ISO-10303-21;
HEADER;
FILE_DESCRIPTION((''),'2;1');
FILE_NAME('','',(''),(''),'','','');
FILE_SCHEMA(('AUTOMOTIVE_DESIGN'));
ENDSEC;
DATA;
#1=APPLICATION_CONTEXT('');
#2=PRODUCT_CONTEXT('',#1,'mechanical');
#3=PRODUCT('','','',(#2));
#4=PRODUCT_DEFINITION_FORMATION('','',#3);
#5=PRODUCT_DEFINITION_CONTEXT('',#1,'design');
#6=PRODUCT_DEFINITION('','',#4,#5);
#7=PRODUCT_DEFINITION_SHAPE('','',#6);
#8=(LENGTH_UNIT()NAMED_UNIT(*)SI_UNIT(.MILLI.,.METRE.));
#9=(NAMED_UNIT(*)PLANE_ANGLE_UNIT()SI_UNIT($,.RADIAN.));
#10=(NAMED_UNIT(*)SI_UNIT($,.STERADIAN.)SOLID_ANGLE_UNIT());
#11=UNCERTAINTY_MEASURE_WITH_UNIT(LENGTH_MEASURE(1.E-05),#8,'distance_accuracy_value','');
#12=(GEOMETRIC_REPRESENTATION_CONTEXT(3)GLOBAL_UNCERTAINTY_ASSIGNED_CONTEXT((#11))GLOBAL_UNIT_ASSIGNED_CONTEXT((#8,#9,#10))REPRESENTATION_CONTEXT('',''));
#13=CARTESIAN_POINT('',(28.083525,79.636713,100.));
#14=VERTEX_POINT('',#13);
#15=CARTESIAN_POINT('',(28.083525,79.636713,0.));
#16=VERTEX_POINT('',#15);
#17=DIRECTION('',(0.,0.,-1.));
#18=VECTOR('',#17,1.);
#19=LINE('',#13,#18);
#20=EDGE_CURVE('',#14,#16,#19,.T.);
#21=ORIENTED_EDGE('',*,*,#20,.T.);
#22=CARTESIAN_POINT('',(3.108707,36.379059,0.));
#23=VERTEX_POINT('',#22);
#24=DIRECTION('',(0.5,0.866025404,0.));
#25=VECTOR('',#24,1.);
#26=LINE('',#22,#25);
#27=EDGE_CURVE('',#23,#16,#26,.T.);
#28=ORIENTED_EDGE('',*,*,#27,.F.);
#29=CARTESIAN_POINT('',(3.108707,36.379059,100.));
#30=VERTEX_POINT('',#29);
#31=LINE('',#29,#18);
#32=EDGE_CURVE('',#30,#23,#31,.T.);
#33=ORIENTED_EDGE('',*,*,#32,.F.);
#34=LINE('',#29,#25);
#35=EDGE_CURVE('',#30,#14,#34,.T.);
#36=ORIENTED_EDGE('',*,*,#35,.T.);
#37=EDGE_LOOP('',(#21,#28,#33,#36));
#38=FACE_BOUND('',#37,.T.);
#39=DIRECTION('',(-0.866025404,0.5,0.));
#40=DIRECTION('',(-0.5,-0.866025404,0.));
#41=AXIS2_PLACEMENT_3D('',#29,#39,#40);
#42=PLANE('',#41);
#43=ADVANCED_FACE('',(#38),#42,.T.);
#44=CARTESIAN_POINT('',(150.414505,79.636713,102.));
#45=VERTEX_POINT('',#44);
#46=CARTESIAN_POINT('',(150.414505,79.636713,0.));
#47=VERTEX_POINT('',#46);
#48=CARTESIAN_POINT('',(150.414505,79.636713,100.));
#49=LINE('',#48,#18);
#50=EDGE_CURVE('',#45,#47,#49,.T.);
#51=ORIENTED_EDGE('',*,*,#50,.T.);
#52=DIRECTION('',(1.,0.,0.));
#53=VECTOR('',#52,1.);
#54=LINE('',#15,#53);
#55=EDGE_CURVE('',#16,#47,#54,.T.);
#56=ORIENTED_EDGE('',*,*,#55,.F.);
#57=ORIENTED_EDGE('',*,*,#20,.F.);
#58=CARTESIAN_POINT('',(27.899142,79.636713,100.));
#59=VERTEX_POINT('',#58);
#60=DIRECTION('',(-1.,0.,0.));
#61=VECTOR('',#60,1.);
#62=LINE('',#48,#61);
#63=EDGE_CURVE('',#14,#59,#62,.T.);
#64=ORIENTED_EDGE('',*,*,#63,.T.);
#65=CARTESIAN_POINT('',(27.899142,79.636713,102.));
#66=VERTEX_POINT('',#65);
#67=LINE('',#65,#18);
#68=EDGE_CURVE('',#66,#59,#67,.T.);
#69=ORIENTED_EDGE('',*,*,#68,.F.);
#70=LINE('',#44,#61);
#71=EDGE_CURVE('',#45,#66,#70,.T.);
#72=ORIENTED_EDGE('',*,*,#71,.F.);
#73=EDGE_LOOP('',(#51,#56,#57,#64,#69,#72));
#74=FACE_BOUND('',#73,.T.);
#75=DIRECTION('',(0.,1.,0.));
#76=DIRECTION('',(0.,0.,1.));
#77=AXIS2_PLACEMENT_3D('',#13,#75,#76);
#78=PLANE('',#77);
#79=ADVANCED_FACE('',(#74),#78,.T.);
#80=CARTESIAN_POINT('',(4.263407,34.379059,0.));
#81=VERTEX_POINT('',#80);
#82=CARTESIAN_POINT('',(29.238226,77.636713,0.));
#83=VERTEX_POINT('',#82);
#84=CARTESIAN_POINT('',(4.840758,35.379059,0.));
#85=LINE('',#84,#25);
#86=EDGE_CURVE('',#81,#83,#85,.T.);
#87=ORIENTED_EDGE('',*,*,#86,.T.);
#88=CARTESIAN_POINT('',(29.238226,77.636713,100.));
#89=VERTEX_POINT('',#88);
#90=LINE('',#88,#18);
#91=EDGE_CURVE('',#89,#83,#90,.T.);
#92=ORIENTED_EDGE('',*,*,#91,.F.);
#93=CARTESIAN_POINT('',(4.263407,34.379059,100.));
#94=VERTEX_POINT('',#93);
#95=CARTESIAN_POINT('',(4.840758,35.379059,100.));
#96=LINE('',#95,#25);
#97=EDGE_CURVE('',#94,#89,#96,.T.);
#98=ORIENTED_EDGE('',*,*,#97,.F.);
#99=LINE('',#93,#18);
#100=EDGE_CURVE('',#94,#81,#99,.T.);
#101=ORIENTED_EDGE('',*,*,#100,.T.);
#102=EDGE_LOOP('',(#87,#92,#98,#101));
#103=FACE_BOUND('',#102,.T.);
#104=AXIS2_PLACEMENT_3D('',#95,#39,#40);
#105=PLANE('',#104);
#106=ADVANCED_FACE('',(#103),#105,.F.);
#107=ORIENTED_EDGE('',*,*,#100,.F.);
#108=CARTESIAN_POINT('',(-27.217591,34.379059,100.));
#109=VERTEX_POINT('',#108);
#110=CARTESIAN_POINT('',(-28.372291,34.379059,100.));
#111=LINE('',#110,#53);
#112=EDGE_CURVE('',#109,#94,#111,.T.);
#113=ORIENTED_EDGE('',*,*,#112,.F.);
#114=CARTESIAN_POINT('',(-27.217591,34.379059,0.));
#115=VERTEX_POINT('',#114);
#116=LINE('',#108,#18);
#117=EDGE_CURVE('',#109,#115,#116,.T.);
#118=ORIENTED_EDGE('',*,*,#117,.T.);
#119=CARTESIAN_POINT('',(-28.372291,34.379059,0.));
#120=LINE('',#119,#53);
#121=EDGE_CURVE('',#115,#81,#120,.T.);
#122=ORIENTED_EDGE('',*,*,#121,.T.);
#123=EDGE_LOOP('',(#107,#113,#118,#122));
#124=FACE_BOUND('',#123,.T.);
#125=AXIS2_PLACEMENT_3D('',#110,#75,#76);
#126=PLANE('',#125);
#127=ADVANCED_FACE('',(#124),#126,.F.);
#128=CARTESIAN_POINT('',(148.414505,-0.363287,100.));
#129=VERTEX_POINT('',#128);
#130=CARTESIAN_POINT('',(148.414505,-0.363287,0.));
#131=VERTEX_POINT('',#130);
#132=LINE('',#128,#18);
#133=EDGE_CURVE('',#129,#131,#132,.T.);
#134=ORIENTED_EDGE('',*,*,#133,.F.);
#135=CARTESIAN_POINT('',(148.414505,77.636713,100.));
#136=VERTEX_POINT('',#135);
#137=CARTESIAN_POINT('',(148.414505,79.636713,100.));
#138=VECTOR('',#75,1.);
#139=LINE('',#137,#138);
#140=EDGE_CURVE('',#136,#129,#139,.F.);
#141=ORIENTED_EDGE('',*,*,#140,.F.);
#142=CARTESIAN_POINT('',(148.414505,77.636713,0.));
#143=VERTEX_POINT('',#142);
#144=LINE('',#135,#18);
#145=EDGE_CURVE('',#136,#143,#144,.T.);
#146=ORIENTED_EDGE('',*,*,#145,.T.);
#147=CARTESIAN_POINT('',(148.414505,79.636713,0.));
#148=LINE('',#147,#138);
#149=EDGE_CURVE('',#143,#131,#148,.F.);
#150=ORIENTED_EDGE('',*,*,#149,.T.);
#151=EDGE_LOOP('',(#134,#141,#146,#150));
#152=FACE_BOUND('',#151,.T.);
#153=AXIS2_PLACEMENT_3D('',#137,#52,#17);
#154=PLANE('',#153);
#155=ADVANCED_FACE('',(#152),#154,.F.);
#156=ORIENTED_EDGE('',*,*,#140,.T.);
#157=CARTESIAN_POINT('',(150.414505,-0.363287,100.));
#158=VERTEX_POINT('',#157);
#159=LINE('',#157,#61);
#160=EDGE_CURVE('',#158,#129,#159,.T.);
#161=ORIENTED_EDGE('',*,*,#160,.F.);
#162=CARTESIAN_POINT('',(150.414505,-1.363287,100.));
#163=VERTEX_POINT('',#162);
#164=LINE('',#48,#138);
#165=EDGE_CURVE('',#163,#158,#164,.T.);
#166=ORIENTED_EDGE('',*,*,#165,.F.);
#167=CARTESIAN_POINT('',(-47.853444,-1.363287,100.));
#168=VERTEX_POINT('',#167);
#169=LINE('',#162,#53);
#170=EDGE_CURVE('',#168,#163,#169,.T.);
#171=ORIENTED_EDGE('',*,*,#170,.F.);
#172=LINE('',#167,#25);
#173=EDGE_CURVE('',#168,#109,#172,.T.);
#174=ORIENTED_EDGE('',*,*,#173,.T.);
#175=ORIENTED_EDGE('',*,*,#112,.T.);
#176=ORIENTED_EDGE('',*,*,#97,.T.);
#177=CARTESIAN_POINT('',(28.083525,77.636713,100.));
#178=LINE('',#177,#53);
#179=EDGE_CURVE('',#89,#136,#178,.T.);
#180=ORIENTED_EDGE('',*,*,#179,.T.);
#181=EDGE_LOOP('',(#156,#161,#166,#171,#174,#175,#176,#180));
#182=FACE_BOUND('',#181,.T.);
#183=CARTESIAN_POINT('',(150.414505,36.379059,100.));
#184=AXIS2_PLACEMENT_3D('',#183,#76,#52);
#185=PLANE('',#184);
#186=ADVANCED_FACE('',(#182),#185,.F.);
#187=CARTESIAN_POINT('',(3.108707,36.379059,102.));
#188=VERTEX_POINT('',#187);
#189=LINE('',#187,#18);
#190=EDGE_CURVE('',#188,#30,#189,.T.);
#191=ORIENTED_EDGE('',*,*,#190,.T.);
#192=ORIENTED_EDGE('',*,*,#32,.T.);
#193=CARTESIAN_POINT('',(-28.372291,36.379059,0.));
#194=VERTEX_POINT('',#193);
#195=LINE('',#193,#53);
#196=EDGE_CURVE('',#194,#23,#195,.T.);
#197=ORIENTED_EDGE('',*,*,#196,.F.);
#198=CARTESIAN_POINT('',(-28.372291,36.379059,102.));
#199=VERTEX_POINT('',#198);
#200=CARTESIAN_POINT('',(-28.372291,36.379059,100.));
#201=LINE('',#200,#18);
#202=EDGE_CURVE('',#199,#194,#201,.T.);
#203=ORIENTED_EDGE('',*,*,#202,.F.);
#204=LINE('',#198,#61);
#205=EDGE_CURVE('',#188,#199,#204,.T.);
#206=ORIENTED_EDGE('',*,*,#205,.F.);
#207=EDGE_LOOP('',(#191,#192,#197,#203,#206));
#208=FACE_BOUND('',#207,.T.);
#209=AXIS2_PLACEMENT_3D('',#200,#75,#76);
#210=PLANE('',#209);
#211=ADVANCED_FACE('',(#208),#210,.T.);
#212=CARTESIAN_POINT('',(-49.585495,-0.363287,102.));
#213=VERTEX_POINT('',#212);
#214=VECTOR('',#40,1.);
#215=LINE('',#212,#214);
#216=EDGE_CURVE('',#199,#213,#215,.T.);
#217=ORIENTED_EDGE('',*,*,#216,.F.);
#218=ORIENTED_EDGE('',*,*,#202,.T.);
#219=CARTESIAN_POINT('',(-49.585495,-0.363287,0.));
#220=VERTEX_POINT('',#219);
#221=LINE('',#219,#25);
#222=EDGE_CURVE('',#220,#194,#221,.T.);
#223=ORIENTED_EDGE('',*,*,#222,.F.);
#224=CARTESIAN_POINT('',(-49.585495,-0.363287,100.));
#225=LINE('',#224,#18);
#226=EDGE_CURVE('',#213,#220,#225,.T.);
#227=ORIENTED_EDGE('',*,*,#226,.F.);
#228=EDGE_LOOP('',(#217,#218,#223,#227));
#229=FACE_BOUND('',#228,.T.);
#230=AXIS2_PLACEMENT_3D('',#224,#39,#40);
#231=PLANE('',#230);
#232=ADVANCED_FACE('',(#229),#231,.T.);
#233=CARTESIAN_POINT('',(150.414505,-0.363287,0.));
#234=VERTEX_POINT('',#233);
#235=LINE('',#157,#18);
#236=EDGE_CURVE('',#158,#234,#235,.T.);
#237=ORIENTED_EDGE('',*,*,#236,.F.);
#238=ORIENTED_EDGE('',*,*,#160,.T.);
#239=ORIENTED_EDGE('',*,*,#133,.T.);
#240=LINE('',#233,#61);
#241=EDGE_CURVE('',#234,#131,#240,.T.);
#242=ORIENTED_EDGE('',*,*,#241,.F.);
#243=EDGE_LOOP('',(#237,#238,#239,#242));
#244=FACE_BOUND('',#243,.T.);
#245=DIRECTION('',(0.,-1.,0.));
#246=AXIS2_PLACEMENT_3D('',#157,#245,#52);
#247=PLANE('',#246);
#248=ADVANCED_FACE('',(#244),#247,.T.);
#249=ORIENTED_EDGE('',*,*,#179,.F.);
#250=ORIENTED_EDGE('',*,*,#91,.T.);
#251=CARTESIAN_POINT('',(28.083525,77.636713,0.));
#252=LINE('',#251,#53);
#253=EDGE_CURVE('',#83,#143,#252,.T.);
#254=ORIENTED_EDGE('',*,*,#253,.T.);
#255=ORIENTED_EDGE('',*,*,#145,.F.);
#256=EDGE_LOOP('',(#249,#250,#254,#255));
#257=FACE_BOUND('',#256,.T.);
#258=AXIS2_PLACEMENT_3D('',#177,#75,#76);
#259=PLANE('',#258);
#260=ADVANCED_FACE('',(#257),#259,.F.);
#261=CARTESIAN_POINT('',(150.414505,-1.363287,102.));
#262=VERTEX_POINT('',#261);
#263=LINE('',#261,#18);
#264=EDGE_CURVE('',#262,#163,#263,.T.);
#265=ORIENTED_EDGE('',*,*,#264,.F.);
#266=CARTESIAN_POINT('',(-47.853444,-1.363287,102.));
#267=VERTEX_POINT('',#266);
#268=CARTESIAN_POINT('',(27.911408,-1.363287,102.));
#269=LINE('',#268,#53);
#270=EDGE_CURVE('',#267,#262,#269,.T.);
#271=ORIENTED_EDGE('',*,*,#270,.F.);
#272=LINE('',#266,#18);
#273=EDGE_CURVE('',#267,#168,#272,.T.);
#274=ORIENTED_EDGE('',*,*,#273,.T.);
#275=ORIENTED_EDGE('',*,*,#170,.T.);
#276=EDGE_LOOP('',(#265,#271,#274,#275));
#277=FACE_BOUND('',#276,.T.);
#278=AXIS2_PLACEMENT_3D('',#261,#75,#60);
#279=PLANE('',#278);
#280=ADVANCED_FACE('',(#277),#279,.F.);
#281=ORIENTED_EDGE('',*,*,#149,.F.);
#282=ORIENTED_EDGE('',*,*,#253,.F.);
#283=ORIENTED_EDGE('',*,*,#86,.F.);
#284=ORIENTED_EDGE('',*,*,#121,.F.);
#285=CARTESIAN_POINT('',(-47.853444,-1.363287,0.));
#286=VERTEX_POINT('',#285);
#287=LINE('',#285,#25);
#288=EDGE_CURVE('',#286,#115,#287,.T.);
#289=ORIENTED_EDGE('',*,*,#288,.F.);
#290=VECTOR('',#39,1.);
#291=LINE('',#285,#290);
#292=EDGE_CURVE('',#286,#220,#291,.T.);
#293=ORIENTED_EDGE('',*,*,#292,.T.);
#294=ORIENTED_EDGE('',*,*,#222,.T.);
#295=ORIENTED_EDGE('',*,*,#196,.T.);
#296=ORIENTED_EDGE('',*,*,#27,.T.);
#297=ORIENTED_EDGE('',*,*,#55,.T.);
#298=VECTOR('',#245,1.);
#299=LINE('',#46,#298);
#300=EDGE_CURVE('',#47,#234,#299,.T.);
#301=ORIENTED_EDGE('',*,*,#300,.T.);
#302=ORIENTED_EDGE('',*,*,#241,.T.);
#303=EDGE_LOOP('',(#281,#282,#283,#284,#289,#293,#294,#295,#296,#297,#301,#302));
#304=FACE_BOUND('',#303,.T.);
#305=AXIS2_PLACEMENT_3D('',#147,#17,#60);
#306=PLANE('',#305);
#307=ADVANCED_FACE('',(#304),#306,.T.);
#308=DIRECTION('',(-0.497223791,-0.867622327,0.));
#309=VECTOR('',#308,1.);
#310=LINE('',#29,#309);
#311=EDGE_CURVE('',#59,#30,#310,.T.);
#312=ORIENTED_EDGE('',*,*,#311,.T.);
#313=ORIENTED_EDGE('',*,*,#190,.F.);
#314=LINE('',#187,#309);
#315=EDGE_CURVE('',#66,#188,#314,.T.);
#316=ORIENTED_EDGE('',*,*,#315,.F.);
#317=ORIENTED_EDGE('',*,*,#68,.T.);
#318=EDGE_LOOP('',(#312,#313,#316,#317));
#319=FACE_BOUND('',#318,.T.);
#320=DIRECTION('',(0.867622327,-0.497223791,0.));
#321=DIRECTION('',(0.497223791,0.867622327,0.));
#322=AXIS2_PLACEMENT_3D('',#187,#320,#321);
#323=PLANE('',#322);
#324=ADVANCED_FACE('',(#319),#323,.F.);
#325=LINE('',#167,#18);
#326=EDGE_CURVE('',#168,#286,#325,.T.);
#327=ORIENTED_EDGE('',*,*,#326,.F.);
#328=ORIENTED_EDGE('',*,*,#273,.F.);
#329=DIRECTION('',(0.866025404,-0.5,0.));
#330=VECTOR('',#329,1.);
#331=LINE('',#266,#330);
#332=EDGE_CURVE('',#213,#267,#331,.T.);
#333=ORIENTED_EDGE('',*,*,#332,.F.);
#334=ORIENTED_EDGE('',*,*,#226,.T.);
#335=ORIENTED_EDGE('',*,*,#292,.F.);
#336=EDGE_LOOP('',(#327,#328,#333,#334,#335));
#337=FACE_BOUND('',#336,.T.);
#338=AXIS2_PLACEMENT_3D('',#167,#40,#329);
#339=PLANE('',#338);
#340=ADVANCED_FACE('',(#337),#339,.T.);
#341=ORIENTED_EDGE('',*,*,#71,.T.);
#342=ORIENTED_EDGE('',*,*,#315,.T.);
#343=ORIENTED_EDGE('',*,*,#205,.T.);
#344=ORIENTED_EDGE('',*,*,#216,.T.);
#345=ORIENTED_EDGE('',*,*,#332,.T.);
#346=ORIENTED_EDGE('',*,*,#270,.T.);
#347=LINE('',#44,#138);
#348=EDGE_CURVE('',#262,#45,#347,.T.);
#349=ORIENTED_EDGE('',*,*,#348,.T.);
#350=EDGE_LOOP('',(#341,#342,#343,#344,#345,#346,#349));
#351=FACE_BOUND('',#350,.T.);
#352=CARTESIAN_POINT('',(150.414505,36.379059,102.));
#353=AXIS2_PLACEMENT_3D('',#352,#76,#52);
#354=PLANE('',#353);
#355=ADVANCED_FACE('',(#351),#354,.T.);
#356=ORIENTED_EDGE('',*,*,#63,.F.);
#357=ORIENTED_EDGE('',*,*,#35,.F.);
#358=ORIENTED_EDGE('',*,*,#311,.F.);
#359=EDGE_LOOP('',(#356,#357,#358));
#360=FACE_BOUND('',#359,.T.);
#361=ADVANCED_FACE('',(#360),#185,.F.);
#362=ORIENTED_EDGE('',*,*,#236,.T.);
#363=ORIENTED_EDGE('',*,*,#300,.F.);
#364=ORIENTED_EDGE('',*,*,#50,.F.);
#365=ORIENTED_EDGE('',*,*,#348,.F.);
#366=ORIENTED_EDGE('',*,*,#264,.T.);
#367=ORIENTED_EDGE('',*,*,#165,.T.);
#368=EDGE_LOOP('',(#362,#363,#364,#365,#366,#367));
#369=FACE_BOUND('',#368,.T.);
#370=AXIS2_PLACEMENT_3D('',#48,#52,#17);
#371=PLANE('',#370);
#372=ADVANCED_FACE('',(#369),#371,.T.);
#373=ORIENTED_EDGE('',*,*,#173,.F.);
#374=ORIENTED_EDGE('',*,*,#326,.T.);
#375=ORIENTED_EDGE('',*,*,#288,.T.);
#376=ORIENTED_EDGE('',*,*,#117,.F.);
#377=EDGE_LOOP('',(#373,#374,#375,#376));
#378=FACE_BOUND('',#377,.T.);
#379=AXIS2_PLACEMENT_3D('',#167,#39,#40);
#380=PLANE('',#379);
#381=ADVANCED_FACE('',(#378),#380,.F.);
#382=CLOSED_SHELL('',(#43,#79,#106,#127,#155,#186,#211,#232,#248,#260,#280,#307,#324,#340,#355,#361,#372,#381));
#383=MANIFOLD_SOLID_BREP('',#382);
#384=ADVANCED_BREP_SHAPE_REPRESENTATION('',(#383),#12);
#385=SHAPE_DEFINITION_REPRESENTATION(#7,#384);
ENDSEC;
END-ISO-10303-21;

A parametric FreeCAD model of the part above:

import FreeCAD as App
import Part
import Sketcher
Q = App.Units.Quantity

doc = App.newDocument("Part")
body = doc.addObject("PartDesign::Body", "Body")

sketch1 = body.newObject("Sketcher::SketchObject", "Sketch")
sketch1.AttachmentSupport = (doc.getObject("XY_Plane"), [""])
sketch1.MapMode = "FlatFace"
sketch1.addGeometry(Part.LineSegment(App.Vector(-28.4, 36.4, 0), App.Vector(-49.6, -0.4, 0)), False)
sketch1.addGeometry(Part.LineSegment(App.Vector(-49.6, -0.4, 0), App.Vector(-47.9, -1.4, 0)), False)
sketch1.addGeometry(Part.LineSegment(App.Vector(-47.9, -1.4, 0), App.Vector(-27.2, 34.4, 0)), False)
sketch1.addGeometry(Part.LineSegment(App.Vector(-27.2, 34.4, 0), App.Vector(4.3, 34.4, 0)), False)
sketch1.addGeometry(Part.LineSegment(App.Vector(4.3, 34.4, 0), App.Vector(29.2, 77.6, 0)), False)
sketch1.addGeometry(Part.LineSegment(App.Vector(29.2, 77.6, 0), App.Vector(148.4, 77.6, 0)), False)
sketch1.addGeometry(Part.LineSegment(App.Vector(148.4, 77.6, 0), App.Vector(148.4, -0.4, 0)), False)
sketch1.addGeometry(Part.LineSegment(App.Vector(148.4, -0.4, 0), App.Vector(150.4, -0.4, 0)), False)
sketch1.addGeometry(Part.LineSegment(App.Vector(150.4, -0.4, 0), App.Vector(150.4, 79.6, 0)), False)
sketch1.addGeometry(Part.LineSegment(App.Vector(150.4, 79.6, 0), App.Vector(28.1, 79.6, 0)), False)
sketch1.addGeometry(Part.LineSegment(App.Vector(28.1, 79.6, 0), App.Vector(3.1, 36.4, 0)), False)
sketch1.addGeometry(Part.LineSegment(App.Vector(3.1, 36.4, 0), App.Vector(-28.4, 36.4, 0)), False)
sketch1.addConstraint(Sketcher.Constraint("Coincident", 0, 2, 1, 1))
sketch1.addConstraint(Sketcher.Constraint("Coincident", 1, 2, 2, 1))
sketch1.addConstraint(Sketcher.Constraint("Coincident", 2, 2, 3, 1))
sketch1.addConstraint(Sketcher.Constraint("Coincident", 3, 2, 4, 1))
sketch1.addConstraint(Sketcher.Constraint("Coincident", 4, 2, 5, 1))
sketch1.addConstraint(Sketcher.Constraint("Coincident", 5, 2, 6, 1))
sketch1.addConstraint(Sketcher.Constraint("Coincident", 6, 2, 7, 1))
sketch1.addConstraint(Sketcher.Constraint("Coincident", 7, 2, 8, 1))
sketch1.addConstraint(Sketcher.Constraint("Coincident", 8, 2, 9, 1))
sketch1.addConstraint(Sketcher.Constraint("Coincident", 9, 2, 10, 1))
sketch1.addConstraint(Sketcher.Constraint("Coincident", 10, 2, 11, 1))
sketch1.addConstraint(Sketcher.Constraint("Coincident", 11, 2, 0, 1))
sketch1.addConstraint(Sketcher.Constraint("Horizontal", 3))
sketch1.addConstraint(Sketcher.Constraint("Horizontal", 5))
sketch1.addConstraint(Sketcher.Constraint("Vertical", 6))
sketch1.addConstraint(Sketcher.Constraint("Horizontal", 7))
sketch1.addConstraint(Sketcher.Constraint("Vertical", 8))
sketch1.addConstraint(Sketcher.Constraint("Horizontal", 9))
sketch1.addConstraint(Sketcher.Constraint("Horizontal", 11))
sketch1.addConstraint(Sketcher.Constraint("Perpendicular", 0, 1))
sketch1.addConstraint(Sketcher.Constraint("Perpendicular", 1, 2))
sketch1.addConstraint(Sketcher.Constraint("Parallel", 2, 4))
sketch1.addConstraint(Sketcher.Constraint("Parallel", 4, 10))
sketch1.addConstraint(Sketcher.Constraint("Horizontal", 0, 2, 6, 2))
sketch1.addConstraint(Sketcher.Constraint("Equal", 3, 11))
sketch1.addConstraint(Sketcher.Constraint("Equal", 4, 10))
sketch1.addConstraint(Sketcher.Constraint("DistanceX", 7, 1, 7, 2, 2.0))
sketch1.addConstraint(Sketcher.Constraint("DistanceY", 6, 2, 6, 1, 78.0))
sketch1.addConstraint(Sketcher.Constraint("DistanceY", 8, 1, 8, 2, 80.0))
sketch1.addConstraint(Sketcher.Constraint("Angle", 0, Q("-120 deg")))
sketch1.addConstraint(Sketcher.Constraint("Distance", 1, 2.0))
sketch1.addConstraint(Sketcher.Constraint("DistanceX", 0, 2, 5, 2, 198.0))
sketch1.addConstraint(Sketcher.Constraint("DistanceX", 3, 1, 3, 2, 31.480998))
sketch1.addConstraint(Sketcher.Constraint("DistanceX", 2, 2, -1, 1, 27.217591))
sketch1.addConstraint(Sketcher.Constraint("DistanceY", -1, 1, 2, 2, 34.379059))
sketch1.addConstraint(Sketcher.Constraint("DistanceX", 1, 2, 3, 2, 52.116852))
pad1 = body.newObject("PartDesign::Pad", "Pad")
pad1.Profile = sketch1
pad1.Length = 100

sketch2 = body.newObject("Sketcher::SketchObject", "Sketch001")
sketch2.AttachmentSupport = (doc.getObject("XY_Plane"), [""])
sketch2.MapMode = "FlatFace"
sketch2.AttachmentOffset = App.Placement(App.Vector(0, 0, 100), App.Rotation())
sketch2.addGeometry(Part.LineSegment(App.Vector(-47.9, -1.4, 0), App.Vector(150.4, -1.4, 0)), False)
sketch2.addGeometry(Part.LineSegment(App.Vector(150.4, -1.4, 0), App.Vector(150.4, 79.6, 0)), False)
sketch2.addGeometry(Part.LineSegment(App.Vector(150.4, 79.6, 0), App.Vector(27.9, 79.6, 0)), False)
sketch2.addGeometry(Part.LineSegment(App.Vector(27.9, 79.6, 0), App.Vector(3.1, 36.4, 0)), False)
sketch2.addGeometry(Part.LineSegment(App.Vector(3.1, 36.4, 0), App.Vector(-28.4, 36.4, 0)), False)
sketch2.addGeometry(Part.LineSegment(App.Vector(-28.4, 36.4, 0), App.Vector(-49.6, -0.4, 0)), False)
sketch2.addGeometry(Part.LineSegment(App.Vector(-49.6, -0.4, 0), App.Vector(-47.9, -1.4, 0)), False)
sketch2.addConstraint(Sketcher.Constraint("Coincident", 0, 2, 1, 1))
sketch2.addConstraint(Sketcher.Constraint("Coincident", 1, 2, 2, 1))
sketch2.addConstraint(Sketcher.Constraint("Coincident", 2, 2, 3, 1))
sketch2.addConstraint(Sketcher.Constraint("Coincident", 3, 2, 4, 1))
sketch2.addConstraint(Sketcher.Constraint("Coincident", 4, 2, 5, 1))
sketch2.addConstraint(Sketcher.Constraint("Coincident", 5, 2, 6, 1))
sketch2.addConstraint(Sketcher.Constraint("Coincident", 6, 2, 0, 1))
sketch2.addConstraint(Sketcher.Constraint("Horizontal", 0))
sketch2.addConstraint(Sketcher.Constraint("Vertical", 1))
sketch2.addConstraint(Sketcher.Constraint("Horizontal", 2))
sketch2.addConstraint(Sketcher.Constraint("Horizontal", 4))
sketch2.addConstraint(Sketcher.Constraint("Perpendicular", 5, 6))
sketch2.addConstraint(Sketcher.Constraint("DistanceY", 1, 1, 1, 2, 81.0))
sketch2.addConstraint(Sketcher.Constraint("Angle", 5, Q("-120 deg")))
sketch2.addConstraint(Sketcher.Constraint("Distance", 6, 2.0))
sketch2.addConstraint(Sketcher.Constraint("DistanceX", 5, 2, 0, 2, 200.0))
sketch2.addConstraint(Sketcher.Constraint("DistanceX", 4, 2, 4, 1, 31.480998))
sketch2.addConstraint(Sketcher.Constraint("Distance", 3, 49.8577))
sketch2.addConstraint(Sketcher.Constraint("DistanceX", 3, 2, 0, 2, 147.305798))
sketch2.addConstraint(Sketcher.Constraint("DistanceX", -1, 1, 2, 2, 27.899142))
sketch2.addConstraint(Sketcher.Constraint("DistanceY", -1, 1, 3, 2, 36.379059))
pad2 = body.newObject("PartDesign::Pad", "Pad001")
pad2.Profile = sketch2
pad2.Length = 2

doc.recompute()
